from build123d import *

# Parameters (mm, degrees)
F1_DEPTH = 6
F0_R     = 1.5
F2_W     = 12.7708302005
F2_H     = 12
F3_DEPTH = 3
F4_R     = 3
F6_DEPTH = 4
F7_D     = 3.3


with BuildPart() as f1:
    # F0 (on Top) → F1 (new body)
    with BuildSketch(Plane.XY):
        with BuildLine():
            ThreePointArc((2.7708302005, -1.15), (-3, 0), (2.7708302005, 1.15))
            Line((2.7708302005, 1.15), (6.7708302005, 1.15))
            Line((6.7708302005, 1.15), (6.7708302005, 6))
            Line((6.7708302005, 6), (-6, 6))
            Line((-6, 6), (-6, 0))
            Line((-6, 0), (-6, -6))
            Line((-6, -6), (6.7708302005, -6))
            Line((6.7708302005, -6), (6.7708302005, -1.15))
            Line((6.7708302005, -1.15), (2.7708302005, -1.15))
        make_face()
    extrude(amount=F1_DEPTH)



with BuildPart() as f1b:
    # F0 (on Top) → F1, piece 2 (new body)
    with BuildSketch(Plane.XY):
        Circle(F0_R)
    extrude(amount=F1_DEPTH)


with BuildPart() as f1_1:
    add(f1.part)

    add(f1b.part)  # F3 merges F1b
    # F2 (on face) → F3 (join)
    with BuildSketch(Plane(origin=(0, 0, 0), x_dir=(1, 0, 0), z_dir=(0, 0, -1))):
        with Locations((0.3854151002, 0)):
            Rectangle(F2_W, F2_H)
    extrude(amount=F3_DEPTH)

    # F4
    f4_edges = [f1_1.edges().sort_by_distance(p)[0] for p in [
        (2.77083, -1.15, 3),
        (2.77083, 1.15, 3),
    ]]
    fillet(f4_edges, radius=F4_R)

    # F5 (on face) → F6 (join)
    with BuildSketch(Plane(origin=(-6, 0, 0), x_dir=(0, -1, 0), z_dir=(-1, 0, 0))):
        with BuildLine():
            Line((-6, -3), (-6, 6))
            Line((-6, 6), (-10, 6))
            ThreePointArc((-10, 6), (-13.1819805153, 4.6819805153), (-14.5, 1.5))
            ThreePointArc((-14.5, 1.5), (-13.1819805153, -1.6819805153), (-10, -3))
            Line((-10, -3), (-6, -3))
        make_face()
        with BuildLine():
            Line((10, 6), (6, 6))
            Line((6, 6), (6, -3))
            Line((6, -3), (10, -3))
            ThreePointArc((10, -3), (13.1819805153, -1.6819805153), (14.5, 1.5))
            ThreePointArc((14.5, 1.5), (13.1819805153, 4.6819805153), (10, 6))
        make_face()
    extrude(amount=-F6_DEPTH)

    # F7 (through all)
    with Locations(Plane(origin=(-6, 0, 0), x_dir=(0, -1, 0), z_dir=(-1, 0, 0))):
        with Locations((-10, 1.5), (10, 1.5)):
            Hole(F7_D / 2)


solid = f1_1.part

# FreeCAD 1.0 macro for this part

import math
import FreeCAD as App
import Part
import Sketcher

V = App.Vector
Q = App.Units.Quantity


def edges_at(feature, points):
    """Names of the edges that pass closest to the given points."""
    edges = feature.Shape.Edges
    near = lambda p: min(range(len(edges)), key=lambda i: edges[i].distToShape(Part.Vertex(*p))[0])
    return sorted({f"Edge{near(p) + 1}" for p in points})


def add_polygon(sketch, points):
    """Adds a closed chain of lines whose ends are joined by coincident constraints."""
    first, n = sketch.GeometryCount, len(points)
    for a, b in zip(points, points[1:] + points[:1]):
        sketch.addGeometry(Part.LineSegment(App.Vector(*a, 0), App.Vector(*b, 0)), False)
    for i in range(n):
        sketch.addConstraint(Sketcher.Constraint("Coincident", first + i, 2, first + (i + 1) % n, 1))

doc = App.newDocument("Part")
body = doc.addObject("PartDesign::Body", "Body")

# Sketch on XY plane
sketch1 = body.newObject("Sketcher::SketchObject", "Sketch")
sketch1.AttachmentSupport = (doc.getObject("XY_Plane"), [""])
sketch1.MapMode = "FlatFace"
sketch1.addGeometry(Part.ArcOfCircle(Part.Circle(V(0, 0, 0), V(0, 0, 1), 3), math.radians(23), math.radians(337)), False)
sketch1.addGeometry(Part.LineSegment(V(2.8, 1.1, 0), V(6.8, 1.1, 0)), False)
sketch1.addGeometry(Part.LineSegment(V(6.8, 1.1, 0), V(6.8, 6, 0)), False)
sketch1.addGeometry(Part.LineSegment(V(6.8, 6, 0), V(-6, 6, 0)), False)
sketch1.addGeometry(Part.LineSegment(V(-6, 6, 0), V(-6, -6, 0)), False)
sketch1.addGeometry(Part.LineSegment(V(-6, -6, 0), V(6.8, -6, 0)), False)
sketch1.addGeometry(Part.LineSegment(V(6.8, -6, 0), V(6.8, -1.1, 0)), False)
sketch1.addGeometry(Part.LineSegment(V(6.8, -1.1, 0), V(2.8, -1.1, 0)), False)
sketch1.addConstraint(Sketcher.Constraint("Coincident", 0, 1, 1, 1))
sketch1.addConstraint(Sketcher.Constraint("Coincident", 1, 2, 2, 1))
sketch1.addConstraint(Sketcher.Constraint("Coincident", 2, 2, 3, 1))
sketch1.addConstraint(Sketcher.Constraint("Coincident", 3, 2, 4, 1))
sketch1.addConstraint(Sketcher.Constraint("Coincident", 4, 2, 5, 1))
sketch1.addConstraint(Sketcher.Constraint("Coincident", 5, 2, 6, 1))
sketch1.addConstraint(Sketcher.Constraint("Coincident", 6, 2, 7, 1))
sketch1.addConstraint(Sketcher.Constraint("Coincident", 7, 2, 0, 2))
sketch1.addConstraint(Sketcher.Constraint("Horizontal", 1))
sketch1.addConstraint(Sketcher.Constraint("Vertical", 2))
sketch1.addConstraint(Sketcher.Constraint("Horizontal", 3))
sketch1.addConstraint(Sketcher.Constraint("Vertical", 4))
sketch1.addConstraint(Sketcher.Constraint("Horizontal", 5))
sketch1.addConstraint(Sketcher.Constraint("Vertical", 6))
sketch1.addConstraint(Sketcher.Constraint("Horizontal", 7))
sketch1.addConstraint(Sketcher.Constraint("Coincident", 0, 3, -1, 1))
sketch1.addConstraint(Sketcher.Constraint("Symmetric", 2, 2, 5, 2, -1))
sketch1.addConstraint(Sketcher.Constraint("Vertical", 0, 1, 7, 2))
sketch1.addConstraint(Sketcher.Constraint("Radius", 0, Q("3 mm")))
sketch1.addConstraint(Sketcher.Constraint("DistanceX", 1, 1, 1, 2, Q("4 mm")))
sketch1.addConstraint(Sketcher.Constraint("DistanceY", 4, 2, 4, 1, Q("12 mm")))
sketch1.addConstraint(Sketcher.Constraint("DistanceX", 3, 2, -1, 1, Q("6 mm")))
sketch1.addConstraint(Sketcher.Constraint("DistanceY", 2, 1, 2, 2, Q("4.85 mm")))
pad1 = body.newObject("PartDesign::Pad", "Pad")
pad1.Profile = sketch1
pad1.Length = 6
body2 = doc.addObject("PartDesign::Body", "Body001")

# Sketch on XY plane
sketch2 = body2.newObject("Sketcher::SketchObject", "Sketch001")
sketch2.AttachmentSupport = (doc.getObject("XY_Plane001"), [""])
sketch2.MapMode = "FlatFace"
sketch2.addGeometry(Part.Circle(V(0, 0, 0), V(0, 0, 1), 1.5), False)
sketch2.addConstraint(Sketcher.Constraint("Coincident", 0, 3, -1, 1))
sketch2.addConstraint(Sketcher.Constraint("Diameter", 0, Q("3 mm")))
pad2 = body2.newObject("PartDesign::Pad", "Pad001")
pad2.Profile = sketch2
pad2.Length = 6
body.AllowCompound = True
doc.recompute()

boolean = body.newObject("PartDesign::Boolean", "Boolean")
boolean.Type = "Fuse"
boolean.addObjects([body2])

# Sketch on XY plane
sketch3 = body.newObject("Sketcher::SketchObject", "Sketch002")
sketch3.AttachmentSupport = (doc.getObject("XY_Plane"), [""])
sketch3.MapMode = "FlatFace"
add_polygon(sketch3, [(-6, -6), (-6, 6), (7, 6), (7, -6)])  # lines 0-3
sketch3.addConstraint(Sketcher.Constraint("Vertical", 0))
sketch3.addConstraint(Sketcher.Constraint("Horizontal", 1))
sketch3.addConstraint(Sketcher.Constraint("Vertical", 2))
sketch3.addConstraint(Sketcher.Constraint("Horizontal", 3))
sketch3.addConstraint(Sketcher.Constraint("DistanceY", 0, 1, 0, 2, Q("12 mm")))
sketch3.addConstraint(Sketcher.Constraint("DistanceX", 0, 2, -1, 1, Q("6 mm")))
sketch3.addConstraint(Sketcher.Constraint("DistanceY", -1, 1, 0, 2, Q("6 mm")))
sketch3.addConstraint(Sketcher.Constraint("DistanceX", 1, 1, 1, 2, Q("12.77083 mm")))
pad3 = body.newObject("PartDesign::Pad", "Pad002")
pad3.Profile = sketch3
pad3.Length = 3
pad3.Reversed = True
doc.recompute()

fillet = body.newObject("PartDesign::Fillet", "Fillet")
fillet.Base = (pad3, edges_at(pad3, [(2.771, -1.15, 3), (2.771, 1.15, 3)]))
fillet.Radius = 3

# Sketch on YZ plane
sketch4 = body.newObject("Sketcher::SketchObject", "Sketch003")
sketch4.AttachmentSupport = (doc.getObject("YZ_Plane"), [""])
sketch4.MapMode = "FlatFace"
sketch4.AttachmentOffset = App.Placement(V(0, 0, -6), App.Rotation())
sketch4.addGeometry(Part.LineSegment(V(6, -3, 0), V(6, 6, 0)), False)
sketch4.addGeometry(Part.LineSegment(V(6, 6, 0), V(10, 6, 0)), False)
sketch4.addGeometry(Part.ArcOfCircle(Part.Circle(V(10, 1.5, 0), V(0, 0, 1), 4.5), math.radians(0), math.radians(90)), False)
sketch4.addGeometry(Part.ArcOfCircle(Part.Circle(V(10, 1.5, 0), V(0, 0, 1), 4.5), math.radians(-90), math.radians(0)), False)
sketch4.addGeometry(Part.LineSegment(V(10, -3, 0), V(6, -3, 0)), False)
sketch4.addGeometry(Part.LineSegment(V(-10, 6, 0), V(-6, 6, 0)), False)
sketch4.addGeometry(Part.LineSegment(V(-6, 6, 0), V(-6, -3, 0)), False)
sketch4.addGeometry(Part.LineSegment(V(-6, -3, 0), V(-10, -3, 0)), False)
sketch4.addGeometry(Part.ArcOfCircle(Part.Circle(V(-10, 1.5, 0), V(0, 0, 1), 4.5), math.radians(180), math.radians(270)), False)
sketch4.addGeometry(Part.ArcOfCircle(Part.Circle(V(-10, 1.5, 0), V(0, 0, 1), 4.5), math.radians(90), math.radians(180)), False)
sketch4.addConstraint(Sketcher.Constraint("Coincident", 0, 2, 1, 1))
sketch4.addConstraint(Sketcher.Constraint("Tangent", 1, 2, 2, 2))
sketch4.addConstraint(Sketcher.Constraint("Tangent", 2, 1, 3, 2))
sketch4.addConstraint(Sketcher.Constraint("Tangent", 3, 1, 4, 1))
sketch4.addConstraint(Sketcher.Constraint("Coincident", 4, 2, 0, 1))
sketch4.addConstraint(Sketcher.Constraint("Coincident", 5, 2, 6, 1))
sketch4.addConstraint(Sketcher.Constraint("Coincident", 6, 2, 7, 1))
sketch4.addConstraint(Sketcher.Constraint("Tangent", 7, 2, 8, 2))
sketch4.addConstraint(Sketcher.Constraint("Tangent", 8, 1, 9, 2))
sketch4.addConstraint(Sketcher.Constraint("Tangent", 9, 1, 5, 1))
sketch4.addConstraint(Sketcher.Constraint("Vertical", 0))
sketch4.addConstraint(Sketcher.Constraint("Horizontal", 1))
sketch4.addConstraint(Sketcher.Constraint("Horizontal", 4))
sketch4.addConstraint(Sketcher.Constraint("Horizontal", 5))
sketch4.addConstraint(Sketcher.Constraint("Vertical", 6))
sketch4.addConstraint(Sketcher.Constraint("Horizontal", 7))
sketch4.addConstraint(Sketcher.Constraint("Equal", 2, 3))
sketch4.addConstraint(Sketcher.Constraint("Equal", 3, 8))
sketch4.addConstraint(Sketcher.Constraint("Equal", 8, 9))
sketch4.addConstraint(Sketcher.Constraint("Symmetric", 2, 3, 8, 3, -2))
sketch4.addConstraint(Sketcher.Constraint("Horizontal", 9, 3, 2, 1))
sketch4.addConstraint(Sketcher.Constraint("Horizontal", 2, 1, 8, 1))
sketch4.addConstraint(Sketcher.Constraint("Equal", 4, 5))
sketch4.addConstraint(Sketcher.Constraint("Radius", 2, Q("4.5 mm")))
sketch4.addConstraint(Sketcher.Constraint("DistanceX", 1, 1, 1, 2, Q("4 mm")))
sketch4.addConstraint(Sketcher.Constraint("DistanceX", -1, 1, 2, 3, Q("10 mm")))
sketch4.addConstraint(Sketcher.Constraint("DistanceY", -1, 1, 0, 2, Q("6 mm")))
pad4 = body.newObject("PartDesign::Pad", "Pad003")
pad4.Profile = sketch4
pad4.Length = 4

# Sketch on YZ plane
sketch5 = body.newObject("Sketcher::SketchObject", "Sketch004")
sketch5.AttachmentSupport = (doc.getObject("YZ_Plane"), [""])
sketch5.MapMode = "FlatFace"
sketch5.AttachmentOffset = App.Placement(V(0, 0, -6), App.Rotation())
sketch5.addGeometry(Part.Circle(V(10, 1.5, 0), V(0, 0, 1), 1.6), False)
sketch5.addGeometry(Part.Circle(V(-10, 1.5, 0), V(0, 0, 1), 1.6), False)
sketch5.addConstraint(Sketcher.Constraint("Equal", 0, 1))
sketch5.addConstraint(Sketcher.Constraint("Symmetric", 0, 3, 1, 3, -2))
sketch5.addConstraint(Sketcher.Constraint("Diameter", 0, Q("3.3 mm")))
sketch5.addConstraint(Sketcher.Constraint("DistanceX", -1, 1, 0, 3, Q("10 mm")))
sketch5.addConstraint(Sketcher.Constraint("DistanceY", -1, 1, 0, 3, Q("1.5 mm")))
doc.recompute()
hole = body.newObject("PartDesign::Hole", "Hole")
hole.Profile = sketch5
hole.ThreadType = "None"
hole.Diameter = 3.3
hole.DepthType = "ThroughAll"
hole.Reversed = True

doc.recompute()
